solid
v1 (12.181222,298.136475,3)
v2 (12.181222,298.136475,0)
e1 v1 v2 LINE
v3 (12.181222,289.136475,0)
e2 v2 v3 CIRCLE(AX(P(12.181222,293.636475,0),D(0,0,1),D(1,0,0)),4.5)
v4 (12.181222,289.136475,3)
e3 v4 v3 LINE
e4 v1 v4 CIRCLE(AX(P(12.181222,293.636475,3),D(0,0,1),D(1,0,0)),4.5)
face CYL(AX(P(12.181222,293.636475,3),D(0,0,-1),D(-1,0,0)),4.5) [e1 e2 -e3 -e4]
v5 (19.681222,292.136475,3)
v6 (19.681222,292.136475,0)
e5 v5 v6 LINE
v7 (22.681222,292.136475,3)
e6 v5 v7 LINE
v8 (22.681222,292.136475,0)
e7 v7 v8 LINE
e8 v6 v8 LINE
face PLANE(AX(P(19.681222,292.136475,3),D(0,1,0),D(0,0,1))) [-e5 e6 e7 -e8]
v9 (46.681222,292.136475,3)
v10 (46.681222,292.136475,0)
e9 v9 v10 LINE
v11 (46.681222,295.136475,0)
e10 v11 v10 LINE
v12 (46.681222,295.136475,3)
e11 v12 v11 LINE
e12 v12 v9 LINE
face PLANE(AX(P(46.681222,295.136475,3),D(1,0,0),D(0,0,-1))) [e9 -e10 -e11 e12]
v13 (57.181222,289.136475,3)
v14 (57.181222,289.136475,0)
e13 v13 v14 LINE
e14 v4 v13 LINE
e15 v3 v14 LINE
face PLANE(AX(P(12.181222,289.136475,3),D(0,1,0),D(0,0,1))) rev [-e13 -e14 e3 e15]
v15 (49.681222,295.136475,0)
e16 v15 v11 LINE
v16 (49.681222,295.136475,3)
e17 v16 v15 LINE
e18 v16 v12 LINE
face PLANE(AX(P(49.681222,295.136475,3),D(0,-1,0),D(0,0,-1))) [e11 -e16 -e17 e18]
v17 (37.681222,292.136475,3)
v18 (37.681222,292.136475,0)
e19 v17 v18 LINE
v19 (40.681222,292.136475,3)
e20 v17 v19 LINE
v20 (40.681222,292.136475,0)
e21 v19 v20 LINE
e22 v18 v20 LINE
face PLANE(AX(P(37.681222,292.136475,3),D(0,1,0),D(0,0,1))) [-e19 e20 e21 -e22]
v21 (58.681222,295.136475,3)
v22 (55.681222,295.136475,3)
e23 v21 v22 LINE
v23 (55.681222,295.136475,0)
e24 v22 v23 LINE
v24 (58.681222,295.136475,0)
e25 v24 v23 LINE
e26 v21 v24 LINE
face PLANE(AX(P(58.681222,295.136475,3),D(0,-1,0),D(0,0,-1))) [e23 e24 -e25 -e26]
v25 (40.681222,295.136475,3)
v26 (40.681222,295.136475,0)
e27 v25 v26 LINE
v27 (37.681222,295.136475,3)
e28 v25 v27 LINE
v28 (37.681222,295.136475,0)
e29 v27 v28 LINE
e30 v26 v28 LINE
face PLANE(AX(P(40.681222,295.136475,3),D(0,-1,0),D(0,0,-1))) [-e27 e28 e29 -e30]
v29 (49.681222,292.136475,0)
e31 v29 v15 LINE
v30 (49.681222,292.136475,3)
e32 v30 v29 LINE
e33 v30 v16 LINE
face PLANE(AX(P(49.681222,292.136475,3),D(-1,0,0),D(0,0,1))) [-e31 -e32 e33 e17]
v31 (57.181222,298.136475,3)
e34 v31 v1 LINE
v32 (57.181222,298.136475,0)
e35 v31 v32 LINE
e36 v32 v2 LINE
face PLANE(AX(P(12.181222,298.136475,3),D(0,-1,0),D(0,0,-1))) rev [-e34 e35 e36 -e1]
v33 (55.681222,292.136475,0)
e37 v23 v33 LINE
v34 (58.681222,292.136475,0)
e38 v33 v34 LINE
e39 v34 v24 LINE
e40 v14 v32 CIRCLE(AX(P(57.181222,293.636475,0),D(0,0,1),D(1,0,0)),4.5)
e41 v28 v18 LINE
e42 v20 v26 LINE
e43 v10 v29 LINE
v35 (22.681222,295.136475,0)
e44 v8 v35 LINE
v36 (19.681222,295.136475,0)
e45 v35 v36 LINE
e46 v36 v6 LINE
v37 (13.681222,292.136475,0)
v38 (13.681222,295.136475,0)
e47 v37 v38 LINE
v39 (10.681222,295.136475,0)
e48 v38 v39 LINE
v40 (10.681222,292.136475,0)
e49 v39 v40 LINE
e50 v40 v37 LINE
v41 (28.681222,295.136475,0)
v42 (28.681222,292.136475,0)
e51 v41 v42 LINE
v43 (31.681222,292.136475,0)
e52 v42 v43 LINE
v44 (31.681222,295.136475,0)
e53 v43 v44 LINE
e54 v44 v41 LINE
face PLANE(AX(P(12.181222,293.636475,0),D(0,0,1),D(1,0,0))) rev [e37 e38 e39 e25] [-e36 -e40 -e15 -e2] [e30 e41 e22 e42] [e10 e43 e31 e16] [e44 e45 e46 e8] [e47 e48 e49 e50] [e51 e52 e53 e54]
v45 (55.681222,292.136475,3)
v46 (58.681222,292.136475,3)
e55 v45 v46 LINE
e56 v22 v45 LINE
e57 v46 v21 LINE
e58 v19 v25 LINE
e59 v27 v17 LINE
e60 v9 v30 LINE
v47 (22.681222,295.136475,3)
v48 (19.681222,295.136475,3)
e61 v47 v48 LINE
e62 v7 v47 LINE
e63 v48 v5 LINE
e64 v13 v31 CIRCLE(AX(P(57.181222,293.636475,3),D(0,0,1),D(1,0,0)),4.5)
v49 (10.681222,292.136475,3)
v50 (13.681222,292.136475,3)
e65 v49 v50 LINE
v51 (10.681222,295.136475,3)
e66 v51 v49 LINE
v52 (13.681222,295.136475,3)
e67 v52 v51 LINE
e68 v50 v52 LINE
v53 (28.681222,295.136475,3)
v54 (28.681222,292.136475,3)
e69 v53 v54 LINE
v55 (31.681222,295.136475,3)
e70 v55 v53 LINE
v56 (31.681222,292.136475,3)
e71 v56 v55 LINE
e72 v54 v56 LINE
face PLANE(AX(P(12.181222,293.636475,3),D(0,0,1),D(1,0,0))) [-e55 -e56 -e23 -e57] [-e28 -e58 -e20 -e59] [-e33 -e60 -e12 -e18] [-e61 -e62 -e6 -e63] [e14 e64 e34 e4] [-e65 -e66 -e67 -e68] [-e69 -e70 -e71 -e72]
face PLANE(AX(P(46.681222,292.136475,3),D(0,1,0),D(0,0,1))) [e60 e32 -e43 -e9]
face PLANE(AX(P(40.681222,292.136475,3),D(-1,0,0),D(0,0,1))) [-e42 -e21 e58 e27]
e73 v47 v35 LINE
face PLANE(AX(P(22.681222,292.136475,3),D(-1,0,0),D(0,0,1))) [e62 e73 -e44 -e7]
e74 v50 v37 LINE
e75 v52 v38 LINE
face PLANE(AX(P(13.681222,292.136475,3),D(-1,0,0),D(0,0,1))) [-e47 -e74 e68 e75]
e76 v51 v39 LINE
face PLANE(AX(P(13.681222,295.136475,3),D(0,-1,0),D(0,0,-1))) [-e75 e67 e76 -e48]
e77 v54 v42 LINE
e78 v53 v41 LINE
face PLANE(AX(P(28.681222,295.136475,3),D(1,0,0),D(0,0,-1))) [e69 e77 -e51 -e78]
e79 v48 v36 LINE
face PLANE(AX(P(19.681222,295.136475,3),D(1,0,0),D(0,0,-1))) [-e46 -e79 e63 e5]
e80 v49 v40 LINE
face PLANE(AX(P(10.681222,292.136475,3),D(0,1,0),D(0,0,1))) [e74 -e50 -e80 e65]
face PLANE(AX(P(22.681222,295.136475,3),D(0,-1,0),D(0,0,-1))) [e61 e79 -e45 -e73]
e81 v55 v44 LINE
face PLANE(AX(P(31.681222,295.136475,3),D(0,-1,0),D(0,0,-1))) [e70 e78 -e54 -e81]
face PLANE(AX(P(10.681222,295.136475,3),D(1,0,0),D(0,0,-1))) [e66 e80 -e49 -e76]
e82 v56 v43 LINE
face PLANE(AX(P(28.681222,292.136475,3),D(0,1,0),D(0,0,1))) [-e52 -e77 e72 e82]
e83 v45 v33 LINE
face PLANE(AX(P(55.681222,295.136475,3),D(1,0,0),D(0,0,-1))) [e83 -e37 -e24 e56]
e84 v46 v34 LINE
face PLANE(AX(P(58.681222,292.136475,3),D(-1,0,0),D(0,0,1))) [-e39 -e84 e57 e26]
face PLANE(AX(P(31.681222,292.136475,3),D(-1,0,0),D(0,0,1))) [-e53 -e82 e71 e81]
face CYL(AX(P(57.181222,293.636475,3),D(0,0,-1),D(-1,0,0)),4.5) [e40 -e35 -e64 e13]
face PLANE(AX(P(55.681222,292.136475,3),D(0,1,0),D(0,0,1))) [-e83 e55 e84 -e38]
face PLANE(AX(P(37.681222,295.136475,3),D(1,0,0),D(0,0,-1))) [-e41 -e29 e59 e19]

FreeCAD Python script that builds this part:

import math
import FreeCAD as App
import Part
import Sketcher
Q = App.Units.Quantity


def add_polygon(sketch, points):
    """Adds a closed chain of lines whose ends are joined by coincident constraints."""
    first, n = sketch.GeometryCount, len(points)
    for a, b in zip(points, points[1:] + points[:1]):
        sketch.addGeometry(Part.LineSegment(App.Vector(*a, 0), App.Vector(*b, 0)), False)
    for i in range(n):
        sketch.addConstraint(Sketcher.Constraint("Coincident", first + i, 2, first + (i + 1) % n, 1))

doc = App.newDocument("Part")
body = doc.addObject("PartDesign::Body", "Body")

# Sketch on XY plane
sketch1 = doc.addObject("Sketcher::SketchObject", "Sketch")
body.addObject(sketch1)
sketch1.AttachmentSupport = (doc.XY_Plane, [""])
sketch1.MapMode = "FlatFace"
sketch1.addGeometry(Part.LineSegment(App.Vector(57.2, 298.1, 0), App.Vector(12.2, 298.1, 0)), False)  # 0
sketch1.addGeometry(Part.ArcOfCircle(Part.Circle(App.Vector(12.2, 293.6, 0), App.Vector(0, 0, 1), 4.5), math.radians(90), math.radians(270)), False)  # 1
sketch1.addGeometry(Part.LineSegment(App.Vector(12.2, 289.1, 0), App.Vector(57.2, 289.1, 0)), False)  # 2
sketch1.addGeometry(Part.ArcOfCircle(Part.Circle(App.Vector(57.2, 293.6, 0), App.Vector(0, 0, 1), 4.5), math.radians(-90), math.radians(90)), False)  # 3
add_polygon(sketch1, [(55.7, 292.1), (55.7, 295.1), (58.7, 295.1), (58.7, 292.1)])  # lines 4-7
add_polygon(sketch1, [(46.7, 292.1), (46.7, 295.1), (49.7, 295.1), (49.7, 292.1)])  # lines 8-11
add_polygon(sketch1, [(37.7, 292.1), (37.7, 295.1), (40.7, 295.1), (40.7, 292.1)])  # lines 12-15
add_polygon(sketch1, [(28.7, 292.1), (28.7, 295.1), (31.7, 295.1), (31.7, 292.1)])  # lines 16-19
add_polygon(sketch1, [(19.7, 292.1), (19.7, 295.1), (22.7, 295.1), (22.7, 292.1)])  # lines 20-23
add_polygon(sketch1, [(10.7, 292.1), (10.7, 295.1), (13.7, 295.1), (13.7, 292.1)])  # lines 24-27
sketch1.addConstraint([
    Sketcher.Constraint("Tangent", 0, 2, 1, 1),
    Sketcher.Constraint("Tangent", 1, 2, 2, 1),
    Sketcher.Constraint("Tangent", 2, 2, 3, 1),
    Sketcher.Constraint("Tangent", 3, 2, 0, 1),
    Sketcher.Constraint("Horizontal", 0),
    Sketcher.Constraint("Horizontal", 2),
    Sketcher.Constraint("Vertical", 4),
    Sketcher.Constraint("Horizontal", 5),
    Sketcher.Constraint("Vertical", 6),
    Sketcher.Constraint("Horizontal", 7),
    Sketcher.Constraint("Vertical", 8),
    Sketcher.Constraint("Horizontal", 9),
    Sketcher.Constraint("Vertical", 10),
    Sketcher.Constraint("Horizontal", 11),
    Sketcher.Constraint("Vertical", 12),
    Sketcher.Constraint("Horizontal", 13),
    Sketcher.Constraint("Vertical", 14),
    Sketcher.Constraint("Horizontal", 15),
    Sketcher.Constraint("Vertical", 16),
    Sketcher.Constraint("Horizontal", 17),
    Sketcher.Constraint("Vertical", 18),
    Sketcher.Constraint("Horizontal", 19),
    Sketcher.Constraint("Vertical", 20),
    Sketcher.Constraint("Horizontal", 21),
    Sketcher.Constraint("Vertical", 22),
    Sketcher.Constraint("Horizontal", 23),
    Sketcher.Constraint("Vertical", 24),
    Sketcher.Constraint("Horizontal", 25),
    Sketcher.Constraint("Vertical", 26),
    Sketcher.Constraint("Horizontal", 27),
    Sketcher.Constraint("Horizontal", 5, 2, 8, 2),
    Sketcher.Constraint("Horizontal", 7, 2, 10, 2),
    Sketcher.Constraint("Horizontal", 9, 2, 12, 2),
    Sketcher.Constraint("Horizontal", 11, 2, 14, 2),
    Sketcher.Constraint("Horizontal", 13, 2, 16, 2),
    Sketcher.Constraint("Horizontal", 15, 2, 18, 2),
    Sketcher.Constraint("Horizontal", 17, 2, 20, 2),
    Sketcher.Constraint("Horizontal", 19, 2, 22, 2),
    Sketcher.Constraint("Horizontal", 21, 2, 24, 2),
    Sketcher.Constraint("Horizontal", 23, 2, 26, 2),
    Sketcher.Constraint("Equal", 7, 9),
    Sketcher.Constraint("Equal", 11, 13),
    Sketcher.Constraint("Equal", 15, 17),
    Sketcher.Constraint("Equal", 19, 21),
    Sketcher.Constraint("Equal", 23, 25),
    Sketcher.Constraint("Equal", 27, 4),
    Sketcher.Constraint("Radius", 1, Q("4.5 mm")),
    Sketcher.Constraint("DistanceX", 0, 2, 0, 1, Q("45 mm")),
    Sketcher.Constraint("DistanceX", 5, 1, 5, 2, Q("3 mm")),
    Sketcher.Constraint("DistanceY", 4, 2, 3, 2, Q("3 mm")),
    Sketcher.Constraint("DistanceX", 8, 2, 4, 2, Q("9 mm")),
    Sketcher.Constraint("DistanceX", 12, 2, 8, 2, Q("9 mm")),
    Sketcher.Constraint("DistanceX", 16, 2, 12, 2, Q("9 mm")),
    Sketcher.Constraint("DistanceX", 20, 2, 16, 2, Q("9 mm")),
    Sketcher.Constraint("DistanceX", 24, 2, 20, 2, Q("9 mm")),
    Sketcher.Constraint("DistanceX", 4, 2, 3, 3, Q("1.5 mm")),
    Sketcher.Constraint("DistanceX", -1, 1, 1, 3, Q("12.181222 mm")),
    Sketcher.Constraint("DistanceY", -1, 1, 1, 3, Q("293.636475 mm")),
])
pad1 = doc.addObject("PartDesign::Pad", "Pad")
body.addObject(pad1)
pad1.Profile = sketch1
pad1.Length = 3

doc.recompute()
